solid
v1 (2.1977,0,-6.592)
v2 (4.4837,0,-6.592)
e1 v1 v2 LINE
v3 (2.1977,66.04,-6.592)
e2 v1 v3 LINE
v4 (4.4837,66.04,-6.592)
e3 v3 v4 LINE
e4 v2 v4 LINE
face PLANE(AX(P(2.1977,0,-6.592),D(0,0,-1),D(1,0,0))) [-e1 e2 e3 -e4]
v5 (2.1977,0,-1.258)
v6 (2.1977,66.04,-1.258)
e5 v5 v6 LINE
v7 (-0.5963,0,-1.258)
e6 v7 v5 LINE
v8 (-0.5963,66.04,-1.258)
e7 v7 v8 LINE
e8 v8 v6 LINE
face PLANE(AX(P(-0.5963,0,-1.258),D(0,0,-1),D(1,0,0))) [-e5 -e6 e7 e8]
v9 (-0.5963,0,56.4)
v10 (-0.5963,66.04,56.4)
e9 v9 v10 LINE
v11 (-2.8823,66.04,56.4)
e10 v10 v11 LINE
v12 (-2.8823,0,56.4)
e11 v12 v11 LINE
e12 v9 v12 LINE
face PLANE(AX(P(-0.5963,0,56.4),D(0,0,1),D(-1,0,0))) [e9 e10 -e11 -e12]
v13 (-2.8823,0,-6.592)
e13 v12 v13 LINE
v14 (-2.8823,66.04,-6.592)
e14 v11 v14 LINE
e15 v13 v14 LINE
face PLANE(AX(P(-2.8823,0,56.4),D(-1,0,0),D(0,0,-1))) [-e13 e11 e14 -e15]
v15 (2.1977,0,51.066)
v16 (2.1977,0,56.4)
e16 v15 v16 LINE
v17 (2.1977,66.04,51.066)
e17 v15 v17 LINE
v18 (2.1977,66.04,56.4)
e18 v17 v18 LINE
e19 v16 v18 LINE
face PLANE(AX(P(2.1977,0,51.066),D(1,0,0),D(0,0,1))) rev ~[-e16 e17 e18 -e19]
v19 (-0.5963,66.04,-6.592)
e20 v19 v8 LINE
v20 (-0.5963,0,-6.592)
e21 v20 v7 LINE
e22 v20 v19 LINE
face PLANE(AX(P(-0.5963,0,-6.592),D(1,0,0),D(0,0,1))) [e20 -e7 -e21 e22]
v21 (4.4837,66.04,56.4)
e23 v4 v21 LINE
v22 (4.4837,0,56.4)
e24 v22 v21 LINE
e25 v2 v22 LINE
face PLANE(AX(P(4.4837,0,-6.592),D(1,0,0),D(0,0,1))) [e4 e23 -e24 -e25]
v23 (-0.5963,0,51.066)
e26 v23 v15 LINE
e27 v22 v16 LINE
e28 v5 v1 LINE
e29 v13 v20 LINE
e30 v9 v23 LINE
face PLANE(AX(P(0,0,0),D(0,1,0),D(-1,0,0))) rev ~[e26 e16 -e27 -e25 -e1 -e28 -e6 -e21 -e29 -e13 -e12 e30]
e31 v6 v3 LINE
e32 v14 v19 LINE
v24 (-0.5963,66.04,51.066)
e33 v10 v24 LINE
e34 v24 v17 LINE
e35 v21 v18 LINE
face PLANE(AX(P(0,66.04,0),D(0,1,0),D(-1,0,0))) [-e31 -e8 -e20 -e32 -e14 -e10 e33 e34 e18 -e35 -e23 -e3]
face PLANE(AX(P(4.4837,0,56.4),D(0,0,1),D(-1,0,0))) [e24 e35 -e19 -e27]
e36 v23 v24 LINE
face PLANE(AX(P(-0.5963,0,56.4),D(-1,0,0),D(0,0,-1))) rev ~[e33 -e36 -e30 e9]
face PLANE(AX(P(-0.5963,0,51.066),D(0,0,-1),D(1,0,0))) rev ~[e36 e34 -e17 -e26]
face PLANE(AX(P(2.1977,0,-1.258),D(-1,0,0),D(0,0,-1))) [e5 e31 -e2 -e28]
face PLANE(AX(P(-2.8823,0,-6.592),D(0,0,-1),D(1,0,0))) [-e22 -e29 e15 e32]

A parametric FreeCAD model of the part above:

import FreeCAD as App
import Part
import Sketcher
from FreeCAD import Vector
Q = App.Units.Quantity

doc = App.newDocument("Part")
body = doc.addObject("PartDesign::Body", "Body")

# Sketch on XZ plane
sketch1 = body.newObject("Sketcher::SketchObject", "Sketch")
sketch1.AttachmentSupport = (doc.getObject("XZ_Plane"), [""])
sketch1.MapMode = "FlatFace"
sketch1.addGeometry([
    Part.LineSegment(Vector(-2.9, -6.6, 0), Vector(-2.9, 56.4, 0)),  # 0
    Part.LineSegment(Vector(-2.9, 56.4, 0), Vector(-0.6, 56.4, 0)),  # 1
    Part.LineSegment(Vector(-0.6, 56.4, 0), Vector(-0.6, 51.1, 0)),  # 2
    Part.LineSegment(Vector(-0.6, 51.1, 0), Vector(2.2, 51.1, 0)),  # 3
    Part.LineSegment(Vector(2.2, 51.1, 0), Vector(2.2, 56.4, 0)),  # 4
    Part.LineSegment(Vector(2.2, 56.4, 0), Vector(4.5, 56.4, 0)),  # 5
    Part.LineSegment(Vector(4.5, 56.4, 0), Vector(4.5, -6.6, 0)),  # 6
    Part.LineSegment(Vector(4.5, -6.6, 0), Vector(2.2, -6.6, 0)),  # 7
    Part.LineSegment(Vector(2.2, -6.6, 0), Vector(2.2, -1.3, 0)),  # 8
    Part.LineSegment(Vector(2.2, -1.3, 0), Vector(-0.6, -1.3, 0)),  # 9
    Part.LineSegment(Vector(-0.6, -1.3, 0), Vector(-0.6, -6.6, 0)),  # 10
    Part.LineSegment(Vector(-0.6, -6.6, 0), Vector(-2.9, -6.6, 0)),  # 11
], False)
sketch1.addConstraint([
    Sketcher.Constraint("Coincident", 0, 2, 1, 1),
    Sketcher.Constraint("Coincident", 1, 2, 2, 1),
    Sketcher.Constraint("Coincident", 2, 2, 3, 1),
    Sketcher.Constraint("Coincident", 3, 2, 4, 1),
    Sketcher.Constraint("Coincident", 4, 2, 5, 1),
    Sketcher.Constraint("Coincident", 5, 2, 6, 1),
    Sketcher.Constraint("Coincident", 6, 2, 7, 1),
    Sketcher.Constraint("Coincident", 7, 2, 8, 1),
    Sketcher.Constraint("Coincident", 8, 2, 9, 1),
    Sketcher.Constraint("Coincident", 9, 2, 10, 1),
    Sketcher.Constraint("Coincident", 10, 2, 11, 1),
    Sketcher.Constraint("Coincident", 11, 2, 0, 1),
    Sketcher.Constraint("Vertical", 0),
    Sketcher.Constraint("Horizontal", 1),
    Sketcher.Constraint("Vertical", 2),
    Sketcher.Constraint("Horizontal", 3),
    Sketcher.Constraint("Vertical", 4),
    Sketcher.Constraint("Horizontal", 5),
    Sketcher.Constraint("Vertical", 6),
    Sketcher.Constraint("Horizontal", 7),
    Sketcher.Constraint("Vertical", 8),
    Sketcher.Constraint("Horizontal", 9),
    Sketcher.Constraint("Vertical", 10),
    Sketcher.Constraint("Horizontal", 11),
    Sketcher.Constraint("Horizontal", 1, 2, 4, 2),
    Sketcher.Constraint("Horizontal", 7, 2, 10, 2),
    Sketcher.Constraint("Vertical", 4, 2, 7, 2),
    Sketcher.Constraint("Vertical", 2, 2, 9, 2),
    Sketcher.Constraint("Equal", 1, 5),
    Sketcher.Constraint("Equal", 4, 8),
    Sketcher.Constraint("DistanceX", 1, 1, 1, 2, Q("0.09 in")),
    Sketcher.Constraint("DistanceY", 0, 1, 0, 2, Q("2.48 in")),
    Sketcher.Constraint("DistanceY", 2, 2, 2, 1, Q("0.21 in")),
    Sketcher.Constraint("DistanceX", 0, 2, 5, 2, Q("0.29 in")),
    Sketcher.Constraint("DistanceX", 0, 2, -1, 1, 2.8823),
    Sketcher.Constraint("DistanceY", -1, 1, 0, 2, 56.4),
])
pad1 = body.newObject("PartDesign::Pad", "Pad")
pad1.Profile = sketch1
pad1.Length = Q("2.6 in")
pad1.Reversed = True

doc.recompute()
